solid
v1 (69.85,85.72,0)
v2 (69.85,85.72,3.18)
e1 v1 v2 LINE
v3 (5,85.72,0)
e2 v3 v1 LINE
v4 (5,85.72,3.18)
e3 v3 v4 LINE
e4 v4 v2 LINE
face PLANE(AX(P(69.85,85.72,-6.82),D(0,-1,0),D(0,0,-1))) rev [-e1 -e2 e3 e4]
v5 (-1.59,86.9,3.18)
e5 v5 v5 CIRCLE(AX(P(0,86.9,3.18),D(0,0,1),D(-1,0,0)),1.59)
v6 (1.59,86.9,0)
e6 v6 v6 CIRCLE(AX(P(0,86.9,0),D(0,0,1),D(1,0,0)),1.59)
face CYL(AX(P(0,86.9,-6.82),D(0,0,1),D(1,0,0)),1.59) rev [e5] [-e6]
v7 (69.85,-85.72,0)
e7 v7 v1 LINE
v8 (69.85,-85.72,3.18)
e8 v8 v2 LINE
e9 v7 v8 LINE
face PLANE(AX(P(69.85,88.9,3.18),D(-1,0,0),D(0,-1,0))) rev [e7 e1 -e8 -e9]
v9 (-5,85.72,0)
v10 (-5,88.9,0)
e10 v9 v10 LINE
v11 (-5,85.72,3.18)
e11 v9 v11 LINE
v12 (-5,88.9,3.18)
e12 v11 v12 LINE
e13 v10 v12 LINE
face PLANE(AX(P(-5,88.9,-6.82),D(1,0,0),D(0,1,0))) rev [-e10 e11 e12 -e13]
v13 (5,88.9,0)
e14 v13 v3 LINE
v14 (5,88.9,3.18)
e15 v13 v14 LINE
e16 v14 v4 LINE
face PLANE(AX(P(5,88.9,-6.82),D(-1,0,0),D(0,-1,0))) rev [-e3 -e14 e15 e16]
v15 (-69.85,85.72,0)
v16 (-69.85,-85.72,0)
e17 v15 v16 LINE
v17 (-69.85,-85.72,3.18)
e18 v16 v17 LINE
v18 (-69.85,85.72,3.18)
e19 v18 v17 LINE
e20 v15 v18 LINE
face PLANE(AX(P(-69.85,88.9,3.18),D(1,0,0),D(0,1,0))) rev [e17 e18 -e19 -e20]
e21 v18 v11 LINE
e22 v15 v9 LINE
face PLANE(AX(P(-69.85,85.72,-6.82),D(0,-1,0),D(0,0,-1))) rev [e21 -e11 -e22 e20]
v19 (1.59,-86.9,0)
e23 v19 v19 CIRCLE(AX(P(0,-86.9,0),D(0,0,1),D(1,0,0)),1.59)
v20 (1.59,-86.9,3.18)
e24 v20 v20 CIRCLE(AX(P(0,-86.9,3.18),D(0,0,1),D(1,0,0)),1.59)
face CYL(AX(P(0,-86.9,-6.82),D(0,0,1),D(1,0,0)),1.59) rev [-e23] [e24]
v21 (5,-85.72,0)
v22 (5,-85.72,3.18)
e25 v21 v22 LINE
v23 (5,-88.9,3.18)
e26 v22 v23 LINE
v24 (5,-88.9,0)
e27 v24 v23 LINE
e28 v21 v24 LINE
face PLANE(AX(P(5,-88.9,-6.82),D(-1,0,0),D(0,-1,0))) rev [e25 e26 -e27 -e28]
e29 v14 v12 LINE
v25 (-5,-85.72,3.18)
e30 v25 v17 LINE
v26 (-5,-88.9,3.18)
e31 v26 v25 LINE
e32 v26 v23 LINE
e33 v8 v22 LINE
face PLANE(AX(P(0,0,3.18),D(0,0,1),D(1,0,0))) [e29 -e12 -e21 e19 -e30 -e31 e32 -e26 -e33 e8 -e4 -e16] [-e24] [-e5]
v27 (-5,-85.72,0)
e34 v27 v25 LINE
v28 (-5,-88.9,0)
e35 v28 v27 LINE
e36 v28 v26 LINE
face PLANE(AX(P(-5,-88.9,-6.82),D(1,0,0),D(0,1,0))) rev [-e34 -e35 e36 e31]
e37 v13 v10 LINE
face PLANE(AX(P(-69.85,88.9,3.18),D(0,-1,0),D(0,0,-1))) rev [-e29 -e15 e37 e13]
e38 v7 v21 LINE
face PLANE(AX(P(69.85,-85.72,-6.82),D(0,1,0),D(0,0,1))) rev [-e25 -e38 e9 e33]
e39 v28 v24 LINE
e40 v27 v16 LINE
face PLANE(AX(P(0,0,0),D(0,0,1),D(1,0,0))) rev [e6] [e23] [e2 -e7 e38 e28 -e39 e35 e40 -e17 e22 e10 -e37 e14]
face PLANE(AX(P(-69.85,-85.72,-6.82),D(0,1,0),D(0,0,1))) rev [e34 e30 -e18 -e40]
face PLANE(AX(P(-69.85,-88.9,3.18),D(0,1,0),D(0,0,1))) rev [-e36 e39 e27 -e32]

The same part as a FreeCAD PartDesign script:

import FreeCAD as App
import Part
import Sketcher
from FreeCAD import Vector
Q = App.Units.Quantity

doc = App.newDocument("Part")
body = doc.addObject("PartDesign::Body", "Body")

sketch1 = doc.addObject("Sketcher::SketchObject", "Sketch")
body.addObject(sketch1)
sketch1.AttachmentSupport = (doc.XY_Plane, [""])
sketch1.MapMode = "FlatFace"
sketch1.addGeometry(Part.LineSegment(Vector(-70, 89, 0), Vector(-70, -89, 0)), False)
sketch1.addGeometry(Part.LineSegment(Vector(-70, -89, 0), Vector(70, -89, 0)), False)
sketch1.addGeometry(Part.LineSegment(Vector(70, -89, 0), Vector(70, 89, 0)), False)
sketch1.addGeometry(Part.LineSegment(Vector(70, 89, 0), Vector(-70, 89, 0)), False)
sketch1.addConstraint(Sketcher.Constraint("Coincident", 0, 2, 1, 1))
sketch1.addConstraint(Sketcher.Constraint("Coincident", 1, 2, 2, 1))
sketch1.addConstraint(Sketcher.Constraint("Coincident", 2, 2, 3, 1))
sketch1.addConstraint(Sketcher.Constraint("Coincident", 3, 2, 0, 1))
sketch1.addConstraint(Sketcher.Constraint("Vertical", 0))
sketch1.addConstraint(Sketcher.Constraint("Horizontal", 1))
sketch1.addConstraint(Sketcher.Constraint("Vertical", 2))
sketch1.addConstraint(Sketcher.Constraint("Horizontal", 3))
sketch1.addConstraint(Sketcher.Constraint("Symmetric", 0, 2, 2, 2, -1, 1))
sketch1.addConstraint(Sketcher.Constraint("DistanceY", 0, 2, 0, 1, Q("7 in")))
sketch1.addConstraint(Sketcher.Constraint("DistanceX", 1, 1, 1, 2, Q("5.5 in")))
pad1 = doc.addObject("PartDesign::Pad", "Pad")
body.addObject(pad1)
pad1.Profile = sketch1
pad1.Length = 3.18

sketch2 = doc.addObject("Sketcher::SketchObject", "Sketch001")
body.addObject(sketch2)
sketch2.AttachmentSupport = (doc.XY_Plane, [""])
sketch2.MapMode = "FlatFace"
sketch2.AttachmentOffset = App.Placement(Vector(0, 0, 3.18), App.Rotation())
sketch2.addGeometry(Part.Circle(Vector(0, -86.9, 0), Vector(0, 0, 1), 1.6), False)
sketch2.addGeometry(Part.Circle(Vector(0, 86.9, 0), Vector(0, 0, 1), 1.6), False)
sketch2.addGeometry(Part.LineSegment(Vector(-69.8, -85.7, 0), Vector(-69.8, -88.9, 0)), False)
sketch2.addGeometry(Part.LineSegment(Vector(-69.8, -88.9, 0), Vector(-5, -88.9, 0)), False)
sketch2.addGeometry(Part.LineSegment(Vector(-5, -88.9, 0), Vector(-5, -85.7, 0)), False)
sketch2.addGeometry(Part.LineSegment(Vector(-5, -85.7, 0), Vector(-69.8, -85.7, 0)), False)
sketch2.addGeometry(Part.LineSegment(Vector(5, -85.7, 0), Vector(5, -88.9, 0)), False)
sketch2.addGeometry(Part.LineSegment(Vector(5, -88.9, 0), Vector(69.8, -88.9, 0)), False)
sketch2.addGeometry(Part.LineSegment(Vector(69.8, -88.9, 0), Vector(69.8, -85.7, 0)), False)
sketch2.addGeometry(Part.LineSegment(Vector(69.8, -85.7, 0), Vector(5, -85.7, 0)), False)
sketch2.addGeometry(Part.LineSegment(Vector(-69.8, 88.9, 0), Vector(-69.8, 85.7, 0)), False)
sketch2.addGeometry(Part.LineSegment(Vector(-69.8, 85.7, 0), Vector(-5, 85.7, 0)), False)
sketch2.addGeometry(Part.LineSegment(Vector(-5, 85.7, 0), Vector(-5, 88.9, 0)), False)
sketch2.addGeometry(Part.LineSegment(Vector(-5, 88.9, 0), Vector(-69.8, 88.9, 0)), False)
sketch2.addGeometry(Part.LineSegment(Vector(5, 88.9, 0), Vector(5, 85.7, 0)), False)
sketch2.addGeometry(Part.LineSegment(Vector(5, 85.7, 0), Vector(69.8, 85.7, 0)), False)
sketch2.addGeometry(Part.LineSegment(Vector(69.8, 85.7, 0), Vector(69.8, 88.9, 0)), False)
sketch2.addGeometry(Part.LineSegment(Vector(69.8, 88.9, 0), Vector(5, 88.9, 0)), False)
sketch2.addConstraint(Sketcher.Constraint("Coincident", 2, 2, 3, 1))
sketch2.addConstraint(Sketcher.Constraint("Coincident", 3, 2, 4, 1))
sketch2.addConstraint(Sketcher.Constraint("Coincident", 4, 2, 5, 1))
sketch2.addConstraint(Sketcher.Constraint("Coincident", 5, 2, 2, 1))
sketch2.addConstraint(Sketcher.Constraint("Coincident", 6, 2, 7, 1))
sketch2.addConstraint(Sketcher.Constraint("Coincident", 7, 2, 8, 1))
sketch2.addConstraint(Sketcher.Constraint("Coincident", 8, 2, 9, 1))
sketch2.addConstraint(Sketcher.Constraint("Coincident", 9, 2, 6, 1))
sketch2.addConstraint(Sketcher.Constraint("Coincident", 10, 2, 11, 1))
sketch2.addConstraint(Sketcher.Constraint("Coincident", 11, 2, 12, 1))
sketch2.addConstraint(Sketcher.Constraint("Coincident", 12, 2, 13, 1))
sketch2.addConstraint(Sketcher.Constraint("Coincident", 13, 2, 10, 1))
sketch2.addConstraint(Sketcher.Constraint("Coincident", 14, 2, 15, 1))
sketch2.addConstraint(Sketcher.Constraint("Coincident", 15, 2, 16, 1))
sketch2.addConstraint(Sketcher.Constraint("Coincident", 16, 2, 17, 1))
sketch2.addConstraint(Sketcher.Constraint("Coincident", 17, 2, 14, 1))
sketch2.addConstraint(Sketcher.Constraint("Vertical", 2))
sketch2.addConstraint(Sketcher.Constraint("Horizontal", 3))
sketch2.addConstraint(Sketcher.Constraint("Vertical", 4))
sketch2.addConstraint(Sketcher.Constraint("Horizontal", 5))
sketch2.addConstraint(Sketcher.Constraint("Vertical", 6))
sketch2.addConstraint(Sketcher.Constraint("Horizontal", 7))
sketch2.addConstraint(Sketcher.Constraint("Vertical", 8))
sketch2.addConstraint(Sketcher.Constraint("Horizontal", 9))
sketch2.addConstraint(Sketcher.Constraint("Vertical", 10))
sketch2.addConstraint(Sketcher.Constraint("Horizontal", 11))
sketch2.addConstraint(Sketcher.Constraint("Vertical", 12))
sketch2.addConstraint(Sketcher.Constraint("Horizontal", 13))
sketch2.addConstraint(Sketcher.Constraint("Vertical", 14))
sketch2.addConstraint(Sketcher.Constraint("Horizontal", 15))
sketch2.addConstraint(Sketcher.Constraint("Vertical", 16))
sketch2.addConstraint(Sketcher.Constraint("Horizontal", 17))
sketch2.addConstraint(Sketcher.Constraint("Equal", 0, 1))
sketch2.addConstraint(Sketcher.Constraint("Symmetric", 0, 3, 1, 3, -1, 1))
sketch2.addConstraint(Sketcher.Constraint("Symmetric", 8, 2, 10, 2, -1, 1))
sketch2.addConstraint(Sketcher.Constraint("Symmetric", 6, 2, 12, 2, -1, 1))
sketch2.addConstraint(Sketcher.Constraint("Symmetric", 4, 2, 14, 2, -1, 1))
sketch2.addConstraint(Sketcher.Constraint("Symmetric", 2, 2, 16, 2, -1, 1))
sketch2.addConstraint(Sketcher.Constraint("Symmetric", 3, 2, 6, 2, -2))
sketch2.addConstraint(Sketcher.Constraint("Symmetric", 5, 2, 8, 2, -2))
sketch2.addConstraint(Sketcher.Constraint("PointOnObject", 0, 3, -2))
sketch2.addConstraint(Sketcher.Constraint("DistanceY", 2, 2, -1, 1, Q("3.5 in")))
sketch2.addConstraint(Sketcher.Constraint("DistanceX", 2, 2, 7, 2, Q("5.5 in")))
sketch2.addConstraint(Sketcher.Constraint("Diameter", 0, 3.18))
sketch2.addConstraint(Sketcher.Constraint("DistanceX", 3, 1, 3, 2, 64.85))
sketch2.addConstraint(Sketcher.Constraint("DistanceY", 2, 2, 2, 1, 3.18))
sketch2.addConstraint(Sketcher.Constraint("DistanceY", 0, 3, -1, 1, 86.9))
pocket1 = doc.addObject("PartDesign::Pocket", "Pocket")
body.addObject(pocket1)
pocket1.Profile = sketch2
pocket1.Length = 10

doc.recompute()
